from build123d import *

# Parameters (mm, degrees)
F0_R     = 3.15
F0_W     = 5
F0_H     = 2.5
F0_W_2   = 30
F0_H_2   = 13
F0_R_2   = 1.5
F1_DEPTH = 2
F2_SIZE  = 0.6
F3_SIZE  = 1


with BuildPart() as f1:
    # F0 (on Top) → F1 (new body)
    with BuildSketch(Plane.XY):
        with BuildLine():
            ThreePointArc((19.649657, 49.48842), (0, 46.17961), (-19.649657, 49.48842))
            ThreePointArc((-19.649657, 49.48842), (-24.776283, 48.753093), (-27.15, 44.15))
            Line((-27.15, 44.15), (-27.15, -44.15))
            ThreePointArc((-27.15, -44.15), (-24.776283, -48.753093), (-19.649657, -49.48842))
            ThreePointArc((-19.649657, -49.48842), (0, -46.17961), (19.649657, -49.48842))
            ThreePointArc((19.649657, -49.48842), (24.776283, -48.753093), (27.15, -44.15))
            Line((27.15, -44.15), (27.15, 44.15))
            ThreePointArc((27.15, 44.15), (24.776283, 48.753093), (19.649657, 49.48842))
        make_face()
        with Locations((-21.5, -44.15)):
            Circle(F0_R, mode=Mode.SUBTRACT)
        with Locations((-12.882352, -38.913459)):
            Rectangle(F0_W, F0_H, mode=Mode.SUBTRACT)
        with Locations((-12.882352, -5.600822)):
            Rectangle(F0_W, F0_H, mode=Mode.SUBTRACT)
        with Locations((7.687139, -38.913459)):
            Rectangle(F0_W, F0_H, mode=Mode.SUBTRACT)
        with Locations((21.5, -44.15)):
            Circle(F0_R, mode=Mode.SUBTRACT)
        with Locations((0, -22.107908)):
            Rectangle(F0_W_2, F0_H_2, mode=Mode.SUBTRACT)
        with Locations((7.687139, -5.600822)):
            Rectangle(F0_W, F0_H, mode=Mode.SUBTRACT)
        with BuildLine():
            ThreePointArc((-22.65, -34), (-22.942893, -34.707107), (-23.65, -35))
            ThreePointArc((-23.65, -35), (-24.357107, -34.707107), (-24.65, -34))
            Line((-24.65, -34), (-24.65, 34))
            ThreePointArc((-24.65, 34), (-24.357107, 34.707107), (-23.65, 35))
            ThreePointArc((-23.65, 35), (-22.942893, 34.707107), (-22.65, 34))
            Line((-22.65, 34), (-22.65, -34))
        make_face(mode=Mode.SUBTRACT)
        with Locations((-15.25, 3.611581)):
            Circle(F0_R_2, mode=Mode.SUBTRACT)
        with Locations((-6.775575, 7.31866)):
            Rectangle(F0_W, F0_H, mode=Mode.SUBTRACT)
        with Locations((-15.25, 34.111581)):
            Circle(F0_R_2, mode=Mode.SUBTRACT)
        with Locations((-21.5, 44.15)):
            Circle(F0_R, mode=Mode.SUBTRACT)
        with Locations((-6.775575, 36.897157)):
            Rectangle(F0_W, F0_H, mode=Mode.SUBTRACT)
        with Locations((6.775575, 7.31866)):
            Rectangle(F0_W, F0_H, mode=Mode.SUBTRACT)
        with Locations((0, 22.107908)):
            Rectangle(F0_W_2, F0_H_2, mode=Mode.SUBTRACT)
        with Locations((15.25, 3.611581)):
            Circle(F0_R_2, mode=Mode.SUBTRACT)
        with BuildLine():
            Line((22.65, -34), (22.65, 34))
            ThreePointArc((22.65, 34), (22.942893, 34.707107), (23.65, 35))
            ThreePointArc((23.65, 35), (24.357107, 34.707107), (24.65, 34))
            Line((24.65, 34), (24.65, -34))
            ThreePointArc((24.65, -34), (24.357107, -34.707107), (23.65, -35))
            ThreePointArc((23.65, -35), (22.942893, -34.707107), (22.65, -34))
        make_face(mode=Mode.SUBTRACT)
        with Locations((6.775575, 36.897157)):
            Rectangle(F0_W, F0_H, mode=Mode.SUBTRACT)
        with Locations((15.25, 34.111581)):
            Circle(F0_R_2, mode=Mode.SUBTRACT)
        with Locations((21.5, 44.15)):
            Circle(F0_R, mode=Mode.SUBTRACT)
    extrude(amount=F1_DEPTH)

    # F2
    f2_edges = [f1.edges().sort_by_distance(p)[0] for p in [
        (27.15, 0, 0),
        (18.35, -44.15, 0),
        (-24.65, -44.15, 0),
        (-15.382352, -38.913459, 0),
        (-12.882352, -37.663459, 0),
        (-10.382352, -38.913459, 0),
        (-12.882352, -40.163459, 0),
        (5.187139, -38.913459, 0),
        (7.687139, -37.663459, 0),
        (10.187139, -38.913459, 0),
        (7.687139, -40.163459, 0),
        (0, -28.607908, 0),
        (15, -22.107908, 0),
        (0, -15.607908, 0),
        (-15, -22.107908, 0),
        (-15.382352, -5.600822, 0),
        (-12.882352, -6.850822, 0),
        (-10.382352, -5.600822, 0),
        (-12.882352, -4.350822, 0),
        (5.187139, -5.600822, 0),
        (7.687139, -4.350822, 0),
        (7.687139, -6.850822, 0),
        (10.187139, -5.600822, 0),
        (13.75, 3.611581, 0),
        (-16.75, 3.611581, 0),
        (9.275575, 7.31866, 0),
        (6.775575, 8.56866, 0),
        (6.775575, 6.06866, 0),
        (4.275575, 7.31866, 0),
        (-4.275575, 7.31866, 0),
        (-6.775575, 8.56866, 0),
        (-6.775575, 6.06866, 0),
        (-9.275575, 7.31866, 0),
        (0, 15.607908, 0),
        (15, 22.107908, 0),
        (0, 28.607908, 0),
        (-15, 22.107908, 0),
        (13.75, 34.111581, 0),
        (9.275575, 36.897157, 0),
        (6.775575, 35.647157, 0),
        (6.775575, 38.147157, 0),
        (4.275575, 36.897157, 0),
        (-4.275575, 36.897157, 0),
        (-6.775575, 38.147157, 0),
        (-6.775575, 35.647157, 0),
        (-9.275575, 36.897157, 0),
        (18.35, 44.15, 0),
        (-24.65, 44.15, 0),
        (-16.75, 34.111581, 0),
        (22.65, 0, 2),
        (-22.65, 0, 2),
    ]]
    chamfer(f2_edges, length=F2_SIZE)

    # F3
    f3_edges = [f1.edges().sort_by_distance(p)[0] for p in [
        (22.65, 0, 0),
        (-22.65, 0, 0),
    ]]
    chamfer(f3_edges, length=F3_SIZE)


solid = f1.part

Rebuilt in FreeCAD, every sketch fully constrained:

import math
import FreeCAD as App
import Part
import Sketcher


def edges_at(feature, points):
    """Names of the edges that pass closest to the given points."""
    edges = feature.Shape.Edges
    near = lambda p: min(range(len(edges)), key=lambda i: edges[i].distToShape(Part.Vertex(*p))[0])
    return sorted({f"Edge{near(p) + 1}" for p in points})

doc = App.newDocument("Part")
params = doc.addObject("Spreadsheet::Sheet", "Params")
for row, (alias, value) in enumerate([
    ("sketch1_diameter", "3 mm"),
    ("sketch1_radius", "0.999999 mm"),
    ("sketch1_diameter2", "6.3 mm"),
    ("sketch1_width", "5 mm"),
    ("sketch1_width2", "30 mm"),
    ("pad1_length", "2 mm"),
    ("chamfer_size", "0.6 mm"),
    ("chamfer2_size", "1 mm"),
], start=1):
    params.set(f"A{row}", alias)
    params.set(f"B{row}", "=" + value)
    params.setAlias(f"B{row}", alias)

body = doc.addObject("PartDesign::Body", "Body")

sketch1 = doc.addObject("Sketcher::SketchObject", "Sketch")
body.addObject(sketch1)
sketch1.AttachmentSupport = (doc.XY_Plane, [""])
sketch1.MapMode = "FlatFace"
sketch1.addGeometry([
    Part.ArcOfCircle(Part.Circle(App.Vector(0, 106.179617, 0), App.Vector(0, 0, 1), 60.000007), math.radians(-109.116757), math.radians(-70.883243)),
    Part.ArcOfCircle(Part.Circle(App.Vector(-21.5, 44.149999, 0), App.Vector(0, 0, 1), 5.65), math.radians(70.883242), math.radians(179.999994)),
    Part.LineSegment(App.Vector(-27.15, 44.15, 0), App.Vector(-27.15, -44.15, 0)),
    Part.ArcOfCircle(Part.Circle(App.Vector(-21.5, -44.149999, 0), App.Vector(0, 0, 1), 5.65), math.radians(-179.999994), math.radians(-70.883242)),
    Part.ArcOfCircle(Part.Circle(App.Vector(0, -106.179617, 0), App.Vector(0, 0, 1), 60.000007), math.radians(70.883243), math.radians(109.116757)),
    Part.ArcOfCircle(Part.Circle(App.Vector(21.5, -44.149999, 0), App.Vector(0, 0, 1), 5.65), math.radians(-109.116758), math.radians(-0.000006)),
    Part.LineSegment(App.Vector(27.15, -44.15, 0), App.Vector(27.15, 44.15, 0)),
    Part.ArcOfCircle(Part.Circle(App.Vector(21.5, 44.149999, 0), App.Vector(0, 0, 1), 5.65), math.radians(0.000006), math.radians(109.116758)),
    Part.Circle(App.Vector(-21.5, -44.15, 0), App.Vector(0, 0, 1), 3.15),
    Part.LineSegment(App.Vector(-10.382352, -40.163459, 0), App.Vector(-15.382352, -40.163459, 0)),
    Part.LineSegment(App.Vector(-15.382352, -40.163459, 0), App.Vector(-15.382352, -37.663459, 0)),
    Part.LineSegment(App.Vector(-15.382352, -37.663459, 0), App.Vector(-10.382352, -37.663459, 0)),
    Part.LineSegment(App.Vector(-10.382352, -37.663459, 0), App.Vector(-10.382352, -40.163459, 0)),
    Part.LineSegment(App.Vector(-22.65, 34, 0), App.Vector(-22.65, -34, 0)),
    Part.ArcOfCircle(Part.Circle(App.Vector(-23.649999, -34.000001, 0), App.Vector(0, 0, 1), 0.999999), math.radians(-90.000043), math.radians(0.000043)),
    Part.ArcOfCircle(Part.Circle(App.Vector(-23.650001, -34.000001, 0), App.Vector(0, 0, 1), 0.999999), math.radians(179.999957), math.radians(270.000043)),
    Part.LineSegment(App.Vector(-24.65, -34, 0), App.Vector(-24.65, 34, 0)),
    Part.ArcOfCircle(Part.Circle(App.Vector(-23.650001, 34.000001, 0), App.Vector(0, 0, 1), 0.999999), math.radians(89.999957), math.radians(180.000043)),
    Part.ArcOfCircle(Part.Circle(App.Vector(-23.649999, 34.000001, 0), App.Vector(0, 0, 1), 0.999999), math.radians(-0.000043), math.radians(90.000043)),
    Part.LineSegment(App.Vector(-10.382352, -6.850822, 0), App.Vector(-15.382352, -6.850822, 0)),
    Part.LineSegment(App.Vector(-15.382352, -6.850822, 0), App.Vector(-15.382352, -4.350822, 0)),
    Part.LineSegment(App.Vector(-15.382352, -4.350822, 0), App.Vector(-10.382352, -4.350822, 0)),
    Part.LineSegment(App.Vector(-10.382352, -4.350822, 0), App.Vector(-10.382352, -6.850822, 0)),
    Part.LineSegment(App.Vector(10.187139, -40.163459, 0), App.Vector(5.187139, -40.163459, 0)),
    Part.LineSegment(App.Vector(5.187139, -40.163459, 0), App.Vector(5.187139, -37.663459, 0)),
    Part.LineSegment(App.Vector(5.187139, -37.663459, 0), App.Vector(10.187139, -37.663459, 0)),
    Part.LineSegment(App.Vector(10.187139, -37.663459, 0), App.Vector(10.187139, -40.163459, 0)),
    Part.Circle(App.Vector(21.5, -44.15, 0), App.Vector(0, 0, 1), 3.15),
    Part.LineSegment(App.Vector(15, -28.607908, 0), App.Vector(-15, -28.607908, 0)),
    Part.LineSegment(App.Vector(-15, -28.607908, 0), App.Vector(-15, -15.607908, 0)),
    Part.LineSegment(App.Vector(-15, -15.607908, 0), App.Vector(15, -15.607908, 0)),
    Part.LineSegment(App.Vector(15, -15.607908, 0), App.Vector(15, -28.607908, 0)),
    Part.LineSegment(App.Vector(10.187139, -6.850822, 0), App.Vector(5.187139, -6.850822, 0)),
    Part.LineSegment(App.Vector(5.187139, -6.850822, 0), App.Vector(5.187139, -4.350822, 0)),
    Part.LineSegment(App.Vector(5.187139, -4.350822, 0), App.Vector(10.187139, -4.350822, 0)),
    Part.LineSegment(App.Vector(10.187139, -4.350822, 0), App.Vector(10.187139, -6.850822, 0)),
    Part.ArcOfCircle(Part.Circle(App.Vector(23.649999, -34.000001, 0), App.Vector(0, 0, 1), 0.999999), math.radians(179.999957), math.radians(270.000043)),
    Part.LineSegment(App.Vector(22.65, -34, 0), App.Vector(22.65, 34, 0)),
    Part.ArcOfCircle(Part.Circle(App.Vector(23.649999, 34.000001, 0), App.Vector(0, 0, 1), 0.999999), math.radians(89.999957), math.radians(180.000043)),
    Part.ArcOfCircle(Part.Circle(App.Vector(23.650001, 34.000001, 0), App.Vector(0, 0, 1), 0.999999), math.radians(-0.000043), math.radians(90.000043)),
    Part.LineSegment(App.Vector(24.65, 34, 0), App.Vector(24.65, -34, 0)),
    Part.ArcOfCircle(Part.Circle(App.Vector(23.650001, -34.000001, 0), App.Vector(0, 0, 1), 0.999999), math.radians(-90.000043), math.radians(0.000043)),
    Part.Circle(App.Vector(-15.25, 3.611581, 0), App.Vector(0, 0, 1), 1.5),
    Part.LineSegment(App.Vector(-4.275575, 6.06866, 0), App.Vector(-9.275575, 6.06866, 0)),
    Part.LineSegment(App.Vector(-9.275575, 6.06866, 0), App.Vector(-9.275575, 8.56866, 0)),
    Part.LineSegment(App.Vector(-9.275575, 8.56866, 0), App.Vector(-4.275575, 8.56866, 0)),
    Part.LineSegment(App.Vector(-4.275575, 8.56866, 0), App.Vector(-4.275575, 6.06866, 0)),
    Part.Circle(App.Vector(-15.25, 34.111581, 0), App.Vector(0, 0, 1), 1.5),
    Part.Circle(App.Vector(-21.5, 44.15, 0), App.Vector(0, 0, 1), 3.15),
    Part.LineSegment(App.Vector(-4.275575, 35.647157, 0), App.Vector(-9.275575, 35.647157, 0)),
    Part.LineSegment(App.Vector(-9.275575, 35.647157, 0), App.Vector(-9.275575, 38.147157, 0)),
    Part.LineSegment(App.Vector(-9.275575, 38.147157, 0), App.Vector(-4.275575, 38.147157, 0)),
    Part.LineSegment(App.Vector(-4.275575, 38.147157, 0), App.Vector(-4.275575, 35.647157, 0)),
    Part.LineSegment(App.Vector(9.275575, 6.06866, 0), App.Vector(4.275575, 6.06866, 0)),
    Part.LineSegment(App.Vector(4.275575, 6.06866, 0), App.Vector(4.275575, 8.56866, 0)),
    Part.LineSegment(App.Vector(4.275575, 8.56866, 0), App.Vector(9.275575, 8.56866, 0)),
    Part.LineSegment(App.Vector(9.275575, 8.56866, 0), App.Vector(9.275575, 6.06866, 0)),
    Part.LineSegment(App.Vector(15, 15.607908, 0), App.Vector(-15, 15.607908, 0)),
    Part.LineSegment(App.Vector(-15, 15.607908, 0), App.Vector(-15, 28.607908, 0)),
    Part.LineSegment(App.Vector(-15, 28.607908, 0), App.Vector(15, 28.607908, 0)),
    Part.LineSegment(App.Vector(15, 28.607908, 0), App.Vector(15, 15.607908, 0)),
    Part.Circle(App.Vector(15.25, 3.611581, 0), App.Vector(0, 0, 1), 1.5),
    Part.LineSegment(App.Vector(9.275575, 35.647157, 0), App.Vector(4.275575, 35.647157, 0)),
    Part.LineSegment(App.Vector(4.275575, 35.647157, 0), App.Vector(4.275575, 38.147157, 0)),
    Part.LineSegment(App.Vector(4.275575, 38.147157, 0), App.Vector(9.275575, 38.147157, 0)),
    Part.LineSegment(App.Vector(9.275575, 38.147157, 0), App.Vector(9.275575, 35.647157, 0)),
    Part.Circle(App.Vector(15.25, 34.111581, 0), App.Vector(0, 0, 1), 1.5),
    Part.Circle(App.Vector(21.5, 44.15, 0), App.Vector(0, 0, 1), 3.15),
], False)
sketch1.addConstraint([
    Sketcher.Constraint("Tangent", 0, 1, 1, 1),
    Sketcher.Constraint("Tangent", 1, 2, 2, 1),
    Sketcher.Constraint("Tangent", 2, 2, 3, 1),
    Sketcher.Constraint("Tangent", 3, 2, 4, 2),
    Sketcher.Constraint("Tangent", 4, 1, 5, 1),
    Sketcher.Constraint("Tangent", 5, 2, 6, 1),
    Sketcher.Constraint("Tangent", 6, 2, 7, 1),
    Sketcher.Constraint("Tangent", 7, 2, 0, 2),
    Sketcher.Constraint("Coincident", 9, 2, 10, 1),
    Sketcher.Constraint("Coincident", 10, 2, 11, 1),
    Sketcher.Constraint("Coincident", 11, 2, 12, 1),
    Sketcher.Constraint("Coincident", 12, 2, 9, 1),
    Sketcher.Constraint("Tangent", 13, 2, 14, 2),
    Sketcher.Constraint("Tangent", 14, 1, 15, 2),
    Sketcher.Constraint("Tangent", 15, 1, 16, 1),
    Sketcher.Constraint("Tangent", 16, 2, 17, 2),
    Sketcher.Constraint("Tangent", 17, 1, 18, 2),
    Sketcher.Constraint("Tangent", 18, 1, 13, 1),
    Sketcher.Constraint("Coincident", 19, 2, 20, 1),
    Sketcher.Constraint("Coincident", 20, 2, 21, 1),
    Sketcher.Constraint("Coincident", 21, 2, 22, 1),
    Sketcher.Constraint("Coincident", 22, 2, 19, 1),
    Sketcher.Constraint("Coincident", 23, 2, 24, 1),
    Sketcher.Constraint("Coincident", 24, 2, 25, 1),
    Sketcher.Constraint("Coincident", 25, 2, 26, 1),
    Sketcher.Constraint("Coincident", 26, 2, 23, 1),
    Sketcher.Constraint("Coincident", 28, 2, 29, 1),
    Sketcher.Constraint("Coincident", 29, 2, 30, 1),
    Sketcher.Constraint("Coincident", 30, 2, 31, 1),
    Sketcher.Constraint("Coincident", 31, 2, 28, 1),
    Sketcher.Constraint("Coincident", 32, 2, 33, 1),
    Sketcher.Constraint("Coincident", 33, 2, 34, 1),
    Sketcher.Constraint("Coincident", 34, 2, 35, 1),
    Sketcher.Constraint("Coincident", 35, 2, 32, 1),
    Sketcher.Constraint("Tangent", 36, 1, 37, 1),
    Sketcher.Constraint("Tangent", 37, 2, 38, 2),
    Sketcher.Constraint("Tangent", 38, 1, 39, 2),
    Sketcher.Constraint("Tangent", 39, 1, 40, 1),
    Sketcher.Constraint("Tangent", 40, 2, 41, 2),
    Sketcher.Constraint("Tangent", 41, 1, 36, 2),
    Sketcher.Constraint("Coincident", 43, 2, 44, 1),
    Sketcher.Constraint("Coincident", 44, 2, 45, 1),
    Sketcher.Constraint("Coincident", 45, 2, 46, 1),
    Sketcher.Constraint("Coincident", 46, 2, 43, 1),
    Sketcher.Constraint("Coincident", 49, 2, 50, 1),
    Sketcher.Constraint("Coincident", 50, 2, 51, 1),
    Sketcher.Constraint("Coincident", 51, 2, 52, 1),
    Sketcher.Constraint("Coincident", 52, 2, 49, 1),
    Sketcher.Constraint("Coincident", 53, 2, 54, 1),
    Sketcher.Constraint("Coincident", 54, 2, 55, 1),
    Sketcher.Constraint("Coincident", 55, 2, 56, 1),
    Sketcher.Constraint("Coincident", 56, 2, 53, 1),
    Sketcher.Constraint("Coincident", 57, 2, 58, 1),
    Sketcher.Constraint("Coincident", 58, 2, 59, 1),
    Sketcher.Constraint("Coincident", 59, 2, 60, 1),
    Sketcher.Constraint("Coincident", 60, 2, 57, 1),
    Sketcher.Constraint("Coincident", 62, 2, 63, 1),
    Sketcher.Constraint("Coincident", 63, 2, 64, 1),
    Sketcher.Constraint("Coincident", 64, 2, 65, 1),
    Sketcher.Constraint("Coincident", 65, 2, 62, 1),
    Sketcher.Constraint("Vertical", 2),
    Sketcher.Constraint("Vertical", 6),
    Sketcher.Constraint("Horizontal", 9),
    Sketcher.Constraint("Vertical", 10),
    Sketcher.Constraint("Horizontal", 11),
    Sketcher.Constraint("Vertical", 12),
    Sketcher.Constraint("Vertical", 13),
    Sketcher.Constraint("Vertical", 16),
    Sketcher.Constraint("Horizontal", 19),
    Sketcher.Constraint("Vertical", 20),
    Sketcher.Constraint("Horizontal", 21),
    Sketcher.Constraint("Vertical", 22),
    Sketcher.Constraint("Horizontal", 23),
    Sketcher.Constraint("Vertical", 24),
    Sketcher.Constraint("Horizontal", 25),
    Sketcher.Constraint("Vertical", 26),
    Sketcher.Constraint("Horizontal", 28),
    Sketcher.Constraint("Vertical", 29),
    Sketcher.Constraint("Horizontal", 30),
    Sketcher.Constraint("Vertical", 31),
    Sketcher.Constraint("Horizontal", 32),
    Sketcher.Constraint("Vertical", 33),
    Sketcher.Constraint("Horizontal", 34),
    Sketcher.Constraint("Vertical", 35),
    Sketcher.Constraint("Vertical", 37),
    Sketcher.Constraint("Vertical", 40),
    Sketcher.Constraint("Horizontal", 43),
    Sketcher.Constraint("Vertical", 44),
    Sketcher.Constraint("Horizontal", 45),
    Sketcher.Constraint("Vertical", 46),
    Sketcher.Constraint("Horizontal", 49),
    Sketcher.Constraint("Vertical", 50),
    Sketcher.Constraint("Horizontal", 51),
    Sketcher.Constraint("Vertical", 52),
    Sketcher.Constraint("Horizontal", 53),
    Sketcher.Constraint("Vertical", 54),
    Sketcher.Constraint("Horizontal", 55),
    Sketcher.Constraint("Vertical", 56),
    Sketcher.Constraint("Horizontal", 57),
    Sketcher.Constraint("Vertical", 58),
    Sketcher.Constraint("Horizontal", 59),
    Sketcher.Constraint("Vertical", 60),
    Sketcher.Constraint("Horizontal", 62),
    Sketcher.Constraint("Vertical", 63),
    Sketcher.Constraint("Horizontal", 64),
    Sketcher.Constraint("Vertical", 65),
    Sketcher.Constraint("Coincident", 8, 3, 3, 3),
    Sketcher.Constraint("Coincident", 27, 3, 5, 3),
    Sketcher.Constraint("Coincident", 48, 3, 1, 3),
    Sketcher.Constraint("Coincident", 67, 3, 7, 3),
    Sketcher.Constraint("Equal", 1, 3),
    Sketcher.Constraint("Equal", 0, 4),
    Sketcher.Constraint("Equal", 3, 5),
    Sketcher.Constraint("Equal", 5, 7),
    Sketcher.Constraint("Equal", 14, 15),
    Sketcher.Constraint("Equal", 15, 17),
    Sketcher.Constraint("Equal", 8, 27),
    Sketcher.Constraint("Equal", 18, 36),
    Sketcher.Constraint("Equal", 36, 38),
    Sketcher.Constraint("Equal", 38, 39),
    Sketcher.Constraint("Equal", 42, 47),
    Sketcher.Constraint("Equal", 27, 48),
    Sketcher.Constraint("Equal", 47, 61),
    Sketcher.Constraint("Equal", 61, 66),
    Sketcher.Constraint("Equal", 48, 67),
    Sketcher.Constraint("Symmetric", 0, 3, 4, 3, -1, 1),
    Sketcher.Constraint("Symmetric", 17, 3, 36, 3, -1, 1),
    Sketcher.Constraint("Symmetric", 14, 1, 38, 1, -1, 1),
    Sketcher.Constraint("Symmetric", 30, 2, 57, 2, -1, 1),
    Sketcher.Constraint("Symmetric", 28, 2, 59, 2, -1, 1),
    Sketcher.Constraint("Symmetric", 3, 3, 5, 3, -2),
    Sketcher.Constraint("Symmetric", 42, 3, 61, 3, -2),
    Sketcher.Constraint("Symmetric", 47, 3, 66, 3, -2),
    Sketcher.Constraint("Symmetric", 17, 1, 38, 1, -2),
    Sketcher.Constraint("Symmetric", 46, 2, 53, 2, -2),
    Sketcher.Constraint("Symmetric", 44, 2, 55, 2, -2),
    Sketcher.Constraint("Symmetric", 52, 2, 62, 2, -2),
    Sketcher.Constraint("Symmetric", 50, 2, 64, 2, -2),
    Sketcher.Constraint("Horizontal", 12, 2, 23, 2),
    Sketcher.Constraint("Horizontal", 11, 2, 24, 2),
    Sketcher.Constraint("Horizontal", 22, 2, 32, 2),
    Sketcher.Constraint("Horizontal", 21, 2, 33, 2),
    Sketcher.Constraint("Vertical", 42, 3, 47, 3),
    Sketcher.Constraint("Vertical", 18, 3, 14, 1),
    Sketcher.Constraint("Vertical", 10, 2, 19, 2),
    Sketcher.Constraint("Vertical", 12, 2, 21, 2),
    Sketcher.Constraint("Vertical", 24, 2, 32, 2),
    Sketcher.Constraint("Vertical", 26, 2, 34, 2),
    Sketcher.Constraint("Vertical", 38, 1, 41, 1),
    Sketcher.Constraint("Vertical", 44, 2, 49, 2),
    Sketcher.Constraint("Vertical", 46, 2, 51, 2),
    Sketcher.Constraint("Vertical", 29, 2, 57, 2),
    Sketcher.Constraint("Equal", 21, 23),
    Sketcher.Constraint("Equal", 34, 43),
    Sketcher.Constraint("Equal", 12, 20),
    Sketcher.Constraint("Equal", 35, 44),
    Sketcher.Constraint("Equal", 46, 50),
    Sketcher.Constraint("Diameter", 42, 3.0),
    Sketcher.Constraint("Radius", 14, 0.999999),
    Sketcher.Constraint("Diameter", 8, 6.3),
    Sketcher.Constraint("DistanceX", 9, 2, 9, 1, 5.0),
    Sketcher.Constraint("DistanceX", 28, 2, 28, 1, 30.0),
    Sketcher.Constraint("DistanceY", 13, 2, 13, 1, 68.0),
    Sketcher.Constraint("DistanceY", 29, 1, 29, 2, 13.0),
    Sketcher.Constraint("Radius", 1, 5.65),
    Sketcher.Constraint("DistanceY", 2, 2, 2, 1, 88.3),
    Sketcher.Constraint("DistanceY", 10, 1, 10, 2, 2.5),
    Sketcher.Constraint("DistanceX", 1, 3, -1, 1, 21.5),
    Sketcher.Constraint("DistanceX", 14, 3, -1, 1, 23.649999),
    Sketcher.Constraint("DistanceX", 42, 3, -1, 1, 15.25),
    Sketcher.Constraint("Radius", 0, 60.000007),
    Sketcher.Constraint("DistanceY", -1, 1, 42, 3, 3.611581),
    Sketcher.Constraint("DistanceY", -1, 1, 47, 3, 34.111581),
    Sketcher.Constraint("DistanceX", 9, 2, -1, 1, 15.382352),
    Sketcher.Constraint("DistanceY", 9, 2, -1, 1, 40.163459),
    Sketcher.Constraint("DistanceX", -1, 1, 23, 2, 5.187139),
    Sketcher.Constraint("DistanceY", -1, 1, 43, 2, 6.06866),
    Sketcher.Constraint("DistanceY", 19, 2, -1, 1, 6.850822),
    Sketcher.Constraint("DistanceY", 28, 2, -1, 1, 28.607908),
    Sketcher.Constraint("DistanceX", 43, 2, -1, 1, 9.275575),
    Sketcher.Constraint("DistanceY", -1, 1, 49, 2, 35.647157),
])
sketch1.setExpression("Constraints[157]", "Params.sketch1_diameter")
sketch1.setExpression("Constraints[158]", "Params.sketch1_radius")
sketch1.setExpression("Constraints[159]", "Params.sketch1_diameter2")
sketch1.setExpression("Constraints[160]", "Params.sketch1_width")
sketch1.setExpression("Constraints[161]", "Params.sketch1_width2")
pad1 = doc.addObject("PartDesign::Pad", "Pad")
body.addObject(pad1)
pad1.Profile = sketch1
pad1.setExpression("Length", "Params.pad1_length")
doc.recompute()

chamfer = doc.addObject("PartDesign::Chamfer", "Chamfer")
body.addObject(chamfer)
chamfer.Base = (pad1, edges_at(pad1, [
    (27.15, 0, 0),
    (18.35, -44.15, 0),
    (-24.65, -44.15, 0),
    (-15.382, -38.913, 0),
    (-12.882, -37.663, 0),
    (-10.382, -38.913, 0),
    (-12.882, -40.163, 0),
    (5.187, -38.913, 0),
    (7.687, -37.663, 0),
    (10.187, -38.913, 0),
    (7.687, -40.163, 0),
    (0, -28.608, 0),
    (15, -22.108, 0),
    (0, -15.608, 0),
    (-15, -22.108, 0),
    (-15.382, -5.601, 0),
    (-12.882, -6.851, 0),
    (-10.382, -5.601, 0),
    (-12.882, -4.351, 0),
    (5.187, -5.601, 0),
    (7.687, -4.351, 0),
    (7.687, -6.851, 0),
    (10.187, -5.601, 0),
    (13.75, 3.612, 0),
    (-16.75, 3.612, 0),
    (9.276, 7.319, 0),
    (6.776, 8.569, 0),
    (6.776, 6.069, 0),
    (4.276, 7.319, 0),
    (-4.276, 7.319, 0),
    (-6.776, 8.569, 0),
    (-6.776, 6.069, 0),
    (-9.276, 7.319, 0),
    (0, 15.608, 0),
    (15, 22.108, 0),
    (0, 28.608, 0),
    (-15, 22.108, 0),
    (13.75, 34.112, 0),
    (9.276, 36.897, 0),
    (6.776, 35.647, 0),
    (6.776, 38.147, 0),
    (4.276, 36.897, 0),
    (-4.276, 36.897, 0),
    (-6.776, 38.147, 0),
    (-6.776, 35.647, 0),
    (-9.276, 36.897, 0),
    (18.35, 44.15, 0),
    (-24.65, 44.15, 0),
    (-16.75, 34.112, 0),
    (22.65, 0, 2),
    (-22.65, 0, 2),
]))
chamfer.setExpression("Size", "Params.chamfer_size")
doc.recompute()

chamfer2 = doc.addObject("PartDesign::Chamfer", "Chamfer001")
body.addObject(chamfer2)
chamfer2.Base = (chamfer, edges_at(chamfer, [(22.65, 0, 0), (-22.65, 0, 0)]))
chamfer2.setExpression("Size", "Params.chamfer2_size")

doc.recompute()
